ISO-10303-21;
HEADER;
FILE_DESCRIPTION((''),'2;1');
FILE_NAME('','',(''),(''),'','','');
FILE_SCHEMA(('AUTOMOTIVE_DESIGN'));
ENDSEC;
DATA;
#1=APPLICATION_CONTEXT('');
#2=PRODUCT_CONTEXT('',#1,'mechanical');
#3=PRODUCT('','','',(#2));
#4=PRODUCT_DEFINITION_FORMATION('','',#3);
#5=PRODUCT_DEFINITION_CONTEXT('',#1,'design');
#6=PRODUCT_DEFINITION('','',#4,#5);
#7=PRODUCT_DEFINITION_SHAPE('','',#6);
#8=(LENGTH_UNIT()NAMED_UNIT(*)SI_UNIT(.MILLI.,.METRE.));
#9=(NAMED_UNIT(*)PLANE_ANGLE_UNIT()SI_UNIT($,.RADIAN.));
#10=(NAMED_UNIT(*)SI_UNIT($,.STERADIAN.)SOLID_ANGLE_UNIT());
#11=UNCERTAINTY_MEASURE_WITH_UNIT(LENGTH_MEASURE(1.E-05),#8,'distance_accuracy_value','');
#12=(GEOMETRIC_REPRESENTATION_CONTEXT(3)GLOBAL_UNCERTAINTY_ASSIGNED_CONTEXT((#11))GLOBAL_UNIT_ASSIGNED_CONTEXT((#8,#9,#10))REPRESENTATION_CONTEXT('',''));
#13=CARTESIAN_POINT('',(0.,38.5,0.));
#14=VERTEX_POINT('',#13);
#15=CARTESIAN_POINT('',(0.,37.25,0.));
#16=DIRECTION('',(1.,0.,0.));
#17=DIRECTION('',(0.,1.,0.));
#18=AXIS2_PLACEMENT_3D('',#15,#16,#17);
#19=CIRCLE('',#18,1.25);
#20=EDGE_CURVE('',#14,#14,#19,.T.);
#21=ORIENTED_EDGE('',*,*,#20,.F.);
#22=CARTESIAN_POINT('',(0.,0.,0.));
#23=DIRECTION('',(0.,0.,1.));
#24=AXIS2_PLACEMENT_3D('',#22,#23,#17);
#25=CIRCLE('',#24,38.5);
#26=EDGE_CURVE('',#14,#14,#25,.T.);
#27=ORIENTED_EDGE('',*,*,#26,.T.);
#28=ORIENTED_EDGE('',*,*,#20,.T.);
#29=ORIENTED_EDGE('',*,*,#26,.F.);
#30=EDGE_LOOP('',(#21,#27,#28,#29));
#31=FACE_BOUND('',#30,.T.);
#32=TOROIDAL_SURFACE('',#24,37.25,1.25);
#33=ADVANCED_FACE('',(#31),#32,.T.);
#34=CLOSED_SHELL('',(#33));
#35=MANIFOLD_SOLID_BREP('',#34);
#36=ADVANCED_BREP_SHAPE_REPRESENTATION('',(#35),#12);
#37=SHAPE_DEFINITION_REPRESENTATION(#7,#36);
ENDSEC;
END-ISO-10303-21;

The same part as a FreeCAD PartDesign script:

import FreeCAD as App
import Part
import Sketcher
from FreeCAD import Vector

doc = App.newDocument("Part")
params = doc.addObject("Spreadsheet::Sheet", "Params")
for row, (alias, value) in enumerate([
    ("sketch1_diameter", "2.5 mm"),
    ("revolution_angle", "360 deg"),
], start=1):
    params.set(f"A{row}", alias)
    params.set(f"B{row}", "=" + value)
    params.setAlias(f"B{row}", alias)

body = doc.addObject("PartDesign::Body", "Body")

sketch1 = doc.addObject("Sketcher::SketchObject", "Sketch")
body.addObject(sketch1)
sketch1.AttachmentSupport = (doc.YZ_Plane, [""])
sketch1.MapMode = "FlatFace"
sketch1.addGeometry(Part.Circle(Vector(37.2, 0, 0), Vector(0, 0, 1), 1.2), False)
sketch1.addConstraint(Sketcher.Constraint("PointOnObject", 0, 3, -1))
sketch1.addConstraint(Sketcher.Constraint("Diameter", 0, 2.5))
sketch1.addConstraint(Sketcher.Constraint("DistanceX", -1, 1, 0, 3, 37.25))
sketch1.setExpression("Constraints[1]", "Params.sketch1_diameter")
revolution = doc.addObject("PartDesign::Revolution", "Revolution")
body.addObject(revolution)
revolution.Profile = sketch1
revolution.ReferenceAxis = (sketch1, ["V_Axis"])
revolution.setExpression("Angle", "Params.revolution_angle")

doc.recompute()
